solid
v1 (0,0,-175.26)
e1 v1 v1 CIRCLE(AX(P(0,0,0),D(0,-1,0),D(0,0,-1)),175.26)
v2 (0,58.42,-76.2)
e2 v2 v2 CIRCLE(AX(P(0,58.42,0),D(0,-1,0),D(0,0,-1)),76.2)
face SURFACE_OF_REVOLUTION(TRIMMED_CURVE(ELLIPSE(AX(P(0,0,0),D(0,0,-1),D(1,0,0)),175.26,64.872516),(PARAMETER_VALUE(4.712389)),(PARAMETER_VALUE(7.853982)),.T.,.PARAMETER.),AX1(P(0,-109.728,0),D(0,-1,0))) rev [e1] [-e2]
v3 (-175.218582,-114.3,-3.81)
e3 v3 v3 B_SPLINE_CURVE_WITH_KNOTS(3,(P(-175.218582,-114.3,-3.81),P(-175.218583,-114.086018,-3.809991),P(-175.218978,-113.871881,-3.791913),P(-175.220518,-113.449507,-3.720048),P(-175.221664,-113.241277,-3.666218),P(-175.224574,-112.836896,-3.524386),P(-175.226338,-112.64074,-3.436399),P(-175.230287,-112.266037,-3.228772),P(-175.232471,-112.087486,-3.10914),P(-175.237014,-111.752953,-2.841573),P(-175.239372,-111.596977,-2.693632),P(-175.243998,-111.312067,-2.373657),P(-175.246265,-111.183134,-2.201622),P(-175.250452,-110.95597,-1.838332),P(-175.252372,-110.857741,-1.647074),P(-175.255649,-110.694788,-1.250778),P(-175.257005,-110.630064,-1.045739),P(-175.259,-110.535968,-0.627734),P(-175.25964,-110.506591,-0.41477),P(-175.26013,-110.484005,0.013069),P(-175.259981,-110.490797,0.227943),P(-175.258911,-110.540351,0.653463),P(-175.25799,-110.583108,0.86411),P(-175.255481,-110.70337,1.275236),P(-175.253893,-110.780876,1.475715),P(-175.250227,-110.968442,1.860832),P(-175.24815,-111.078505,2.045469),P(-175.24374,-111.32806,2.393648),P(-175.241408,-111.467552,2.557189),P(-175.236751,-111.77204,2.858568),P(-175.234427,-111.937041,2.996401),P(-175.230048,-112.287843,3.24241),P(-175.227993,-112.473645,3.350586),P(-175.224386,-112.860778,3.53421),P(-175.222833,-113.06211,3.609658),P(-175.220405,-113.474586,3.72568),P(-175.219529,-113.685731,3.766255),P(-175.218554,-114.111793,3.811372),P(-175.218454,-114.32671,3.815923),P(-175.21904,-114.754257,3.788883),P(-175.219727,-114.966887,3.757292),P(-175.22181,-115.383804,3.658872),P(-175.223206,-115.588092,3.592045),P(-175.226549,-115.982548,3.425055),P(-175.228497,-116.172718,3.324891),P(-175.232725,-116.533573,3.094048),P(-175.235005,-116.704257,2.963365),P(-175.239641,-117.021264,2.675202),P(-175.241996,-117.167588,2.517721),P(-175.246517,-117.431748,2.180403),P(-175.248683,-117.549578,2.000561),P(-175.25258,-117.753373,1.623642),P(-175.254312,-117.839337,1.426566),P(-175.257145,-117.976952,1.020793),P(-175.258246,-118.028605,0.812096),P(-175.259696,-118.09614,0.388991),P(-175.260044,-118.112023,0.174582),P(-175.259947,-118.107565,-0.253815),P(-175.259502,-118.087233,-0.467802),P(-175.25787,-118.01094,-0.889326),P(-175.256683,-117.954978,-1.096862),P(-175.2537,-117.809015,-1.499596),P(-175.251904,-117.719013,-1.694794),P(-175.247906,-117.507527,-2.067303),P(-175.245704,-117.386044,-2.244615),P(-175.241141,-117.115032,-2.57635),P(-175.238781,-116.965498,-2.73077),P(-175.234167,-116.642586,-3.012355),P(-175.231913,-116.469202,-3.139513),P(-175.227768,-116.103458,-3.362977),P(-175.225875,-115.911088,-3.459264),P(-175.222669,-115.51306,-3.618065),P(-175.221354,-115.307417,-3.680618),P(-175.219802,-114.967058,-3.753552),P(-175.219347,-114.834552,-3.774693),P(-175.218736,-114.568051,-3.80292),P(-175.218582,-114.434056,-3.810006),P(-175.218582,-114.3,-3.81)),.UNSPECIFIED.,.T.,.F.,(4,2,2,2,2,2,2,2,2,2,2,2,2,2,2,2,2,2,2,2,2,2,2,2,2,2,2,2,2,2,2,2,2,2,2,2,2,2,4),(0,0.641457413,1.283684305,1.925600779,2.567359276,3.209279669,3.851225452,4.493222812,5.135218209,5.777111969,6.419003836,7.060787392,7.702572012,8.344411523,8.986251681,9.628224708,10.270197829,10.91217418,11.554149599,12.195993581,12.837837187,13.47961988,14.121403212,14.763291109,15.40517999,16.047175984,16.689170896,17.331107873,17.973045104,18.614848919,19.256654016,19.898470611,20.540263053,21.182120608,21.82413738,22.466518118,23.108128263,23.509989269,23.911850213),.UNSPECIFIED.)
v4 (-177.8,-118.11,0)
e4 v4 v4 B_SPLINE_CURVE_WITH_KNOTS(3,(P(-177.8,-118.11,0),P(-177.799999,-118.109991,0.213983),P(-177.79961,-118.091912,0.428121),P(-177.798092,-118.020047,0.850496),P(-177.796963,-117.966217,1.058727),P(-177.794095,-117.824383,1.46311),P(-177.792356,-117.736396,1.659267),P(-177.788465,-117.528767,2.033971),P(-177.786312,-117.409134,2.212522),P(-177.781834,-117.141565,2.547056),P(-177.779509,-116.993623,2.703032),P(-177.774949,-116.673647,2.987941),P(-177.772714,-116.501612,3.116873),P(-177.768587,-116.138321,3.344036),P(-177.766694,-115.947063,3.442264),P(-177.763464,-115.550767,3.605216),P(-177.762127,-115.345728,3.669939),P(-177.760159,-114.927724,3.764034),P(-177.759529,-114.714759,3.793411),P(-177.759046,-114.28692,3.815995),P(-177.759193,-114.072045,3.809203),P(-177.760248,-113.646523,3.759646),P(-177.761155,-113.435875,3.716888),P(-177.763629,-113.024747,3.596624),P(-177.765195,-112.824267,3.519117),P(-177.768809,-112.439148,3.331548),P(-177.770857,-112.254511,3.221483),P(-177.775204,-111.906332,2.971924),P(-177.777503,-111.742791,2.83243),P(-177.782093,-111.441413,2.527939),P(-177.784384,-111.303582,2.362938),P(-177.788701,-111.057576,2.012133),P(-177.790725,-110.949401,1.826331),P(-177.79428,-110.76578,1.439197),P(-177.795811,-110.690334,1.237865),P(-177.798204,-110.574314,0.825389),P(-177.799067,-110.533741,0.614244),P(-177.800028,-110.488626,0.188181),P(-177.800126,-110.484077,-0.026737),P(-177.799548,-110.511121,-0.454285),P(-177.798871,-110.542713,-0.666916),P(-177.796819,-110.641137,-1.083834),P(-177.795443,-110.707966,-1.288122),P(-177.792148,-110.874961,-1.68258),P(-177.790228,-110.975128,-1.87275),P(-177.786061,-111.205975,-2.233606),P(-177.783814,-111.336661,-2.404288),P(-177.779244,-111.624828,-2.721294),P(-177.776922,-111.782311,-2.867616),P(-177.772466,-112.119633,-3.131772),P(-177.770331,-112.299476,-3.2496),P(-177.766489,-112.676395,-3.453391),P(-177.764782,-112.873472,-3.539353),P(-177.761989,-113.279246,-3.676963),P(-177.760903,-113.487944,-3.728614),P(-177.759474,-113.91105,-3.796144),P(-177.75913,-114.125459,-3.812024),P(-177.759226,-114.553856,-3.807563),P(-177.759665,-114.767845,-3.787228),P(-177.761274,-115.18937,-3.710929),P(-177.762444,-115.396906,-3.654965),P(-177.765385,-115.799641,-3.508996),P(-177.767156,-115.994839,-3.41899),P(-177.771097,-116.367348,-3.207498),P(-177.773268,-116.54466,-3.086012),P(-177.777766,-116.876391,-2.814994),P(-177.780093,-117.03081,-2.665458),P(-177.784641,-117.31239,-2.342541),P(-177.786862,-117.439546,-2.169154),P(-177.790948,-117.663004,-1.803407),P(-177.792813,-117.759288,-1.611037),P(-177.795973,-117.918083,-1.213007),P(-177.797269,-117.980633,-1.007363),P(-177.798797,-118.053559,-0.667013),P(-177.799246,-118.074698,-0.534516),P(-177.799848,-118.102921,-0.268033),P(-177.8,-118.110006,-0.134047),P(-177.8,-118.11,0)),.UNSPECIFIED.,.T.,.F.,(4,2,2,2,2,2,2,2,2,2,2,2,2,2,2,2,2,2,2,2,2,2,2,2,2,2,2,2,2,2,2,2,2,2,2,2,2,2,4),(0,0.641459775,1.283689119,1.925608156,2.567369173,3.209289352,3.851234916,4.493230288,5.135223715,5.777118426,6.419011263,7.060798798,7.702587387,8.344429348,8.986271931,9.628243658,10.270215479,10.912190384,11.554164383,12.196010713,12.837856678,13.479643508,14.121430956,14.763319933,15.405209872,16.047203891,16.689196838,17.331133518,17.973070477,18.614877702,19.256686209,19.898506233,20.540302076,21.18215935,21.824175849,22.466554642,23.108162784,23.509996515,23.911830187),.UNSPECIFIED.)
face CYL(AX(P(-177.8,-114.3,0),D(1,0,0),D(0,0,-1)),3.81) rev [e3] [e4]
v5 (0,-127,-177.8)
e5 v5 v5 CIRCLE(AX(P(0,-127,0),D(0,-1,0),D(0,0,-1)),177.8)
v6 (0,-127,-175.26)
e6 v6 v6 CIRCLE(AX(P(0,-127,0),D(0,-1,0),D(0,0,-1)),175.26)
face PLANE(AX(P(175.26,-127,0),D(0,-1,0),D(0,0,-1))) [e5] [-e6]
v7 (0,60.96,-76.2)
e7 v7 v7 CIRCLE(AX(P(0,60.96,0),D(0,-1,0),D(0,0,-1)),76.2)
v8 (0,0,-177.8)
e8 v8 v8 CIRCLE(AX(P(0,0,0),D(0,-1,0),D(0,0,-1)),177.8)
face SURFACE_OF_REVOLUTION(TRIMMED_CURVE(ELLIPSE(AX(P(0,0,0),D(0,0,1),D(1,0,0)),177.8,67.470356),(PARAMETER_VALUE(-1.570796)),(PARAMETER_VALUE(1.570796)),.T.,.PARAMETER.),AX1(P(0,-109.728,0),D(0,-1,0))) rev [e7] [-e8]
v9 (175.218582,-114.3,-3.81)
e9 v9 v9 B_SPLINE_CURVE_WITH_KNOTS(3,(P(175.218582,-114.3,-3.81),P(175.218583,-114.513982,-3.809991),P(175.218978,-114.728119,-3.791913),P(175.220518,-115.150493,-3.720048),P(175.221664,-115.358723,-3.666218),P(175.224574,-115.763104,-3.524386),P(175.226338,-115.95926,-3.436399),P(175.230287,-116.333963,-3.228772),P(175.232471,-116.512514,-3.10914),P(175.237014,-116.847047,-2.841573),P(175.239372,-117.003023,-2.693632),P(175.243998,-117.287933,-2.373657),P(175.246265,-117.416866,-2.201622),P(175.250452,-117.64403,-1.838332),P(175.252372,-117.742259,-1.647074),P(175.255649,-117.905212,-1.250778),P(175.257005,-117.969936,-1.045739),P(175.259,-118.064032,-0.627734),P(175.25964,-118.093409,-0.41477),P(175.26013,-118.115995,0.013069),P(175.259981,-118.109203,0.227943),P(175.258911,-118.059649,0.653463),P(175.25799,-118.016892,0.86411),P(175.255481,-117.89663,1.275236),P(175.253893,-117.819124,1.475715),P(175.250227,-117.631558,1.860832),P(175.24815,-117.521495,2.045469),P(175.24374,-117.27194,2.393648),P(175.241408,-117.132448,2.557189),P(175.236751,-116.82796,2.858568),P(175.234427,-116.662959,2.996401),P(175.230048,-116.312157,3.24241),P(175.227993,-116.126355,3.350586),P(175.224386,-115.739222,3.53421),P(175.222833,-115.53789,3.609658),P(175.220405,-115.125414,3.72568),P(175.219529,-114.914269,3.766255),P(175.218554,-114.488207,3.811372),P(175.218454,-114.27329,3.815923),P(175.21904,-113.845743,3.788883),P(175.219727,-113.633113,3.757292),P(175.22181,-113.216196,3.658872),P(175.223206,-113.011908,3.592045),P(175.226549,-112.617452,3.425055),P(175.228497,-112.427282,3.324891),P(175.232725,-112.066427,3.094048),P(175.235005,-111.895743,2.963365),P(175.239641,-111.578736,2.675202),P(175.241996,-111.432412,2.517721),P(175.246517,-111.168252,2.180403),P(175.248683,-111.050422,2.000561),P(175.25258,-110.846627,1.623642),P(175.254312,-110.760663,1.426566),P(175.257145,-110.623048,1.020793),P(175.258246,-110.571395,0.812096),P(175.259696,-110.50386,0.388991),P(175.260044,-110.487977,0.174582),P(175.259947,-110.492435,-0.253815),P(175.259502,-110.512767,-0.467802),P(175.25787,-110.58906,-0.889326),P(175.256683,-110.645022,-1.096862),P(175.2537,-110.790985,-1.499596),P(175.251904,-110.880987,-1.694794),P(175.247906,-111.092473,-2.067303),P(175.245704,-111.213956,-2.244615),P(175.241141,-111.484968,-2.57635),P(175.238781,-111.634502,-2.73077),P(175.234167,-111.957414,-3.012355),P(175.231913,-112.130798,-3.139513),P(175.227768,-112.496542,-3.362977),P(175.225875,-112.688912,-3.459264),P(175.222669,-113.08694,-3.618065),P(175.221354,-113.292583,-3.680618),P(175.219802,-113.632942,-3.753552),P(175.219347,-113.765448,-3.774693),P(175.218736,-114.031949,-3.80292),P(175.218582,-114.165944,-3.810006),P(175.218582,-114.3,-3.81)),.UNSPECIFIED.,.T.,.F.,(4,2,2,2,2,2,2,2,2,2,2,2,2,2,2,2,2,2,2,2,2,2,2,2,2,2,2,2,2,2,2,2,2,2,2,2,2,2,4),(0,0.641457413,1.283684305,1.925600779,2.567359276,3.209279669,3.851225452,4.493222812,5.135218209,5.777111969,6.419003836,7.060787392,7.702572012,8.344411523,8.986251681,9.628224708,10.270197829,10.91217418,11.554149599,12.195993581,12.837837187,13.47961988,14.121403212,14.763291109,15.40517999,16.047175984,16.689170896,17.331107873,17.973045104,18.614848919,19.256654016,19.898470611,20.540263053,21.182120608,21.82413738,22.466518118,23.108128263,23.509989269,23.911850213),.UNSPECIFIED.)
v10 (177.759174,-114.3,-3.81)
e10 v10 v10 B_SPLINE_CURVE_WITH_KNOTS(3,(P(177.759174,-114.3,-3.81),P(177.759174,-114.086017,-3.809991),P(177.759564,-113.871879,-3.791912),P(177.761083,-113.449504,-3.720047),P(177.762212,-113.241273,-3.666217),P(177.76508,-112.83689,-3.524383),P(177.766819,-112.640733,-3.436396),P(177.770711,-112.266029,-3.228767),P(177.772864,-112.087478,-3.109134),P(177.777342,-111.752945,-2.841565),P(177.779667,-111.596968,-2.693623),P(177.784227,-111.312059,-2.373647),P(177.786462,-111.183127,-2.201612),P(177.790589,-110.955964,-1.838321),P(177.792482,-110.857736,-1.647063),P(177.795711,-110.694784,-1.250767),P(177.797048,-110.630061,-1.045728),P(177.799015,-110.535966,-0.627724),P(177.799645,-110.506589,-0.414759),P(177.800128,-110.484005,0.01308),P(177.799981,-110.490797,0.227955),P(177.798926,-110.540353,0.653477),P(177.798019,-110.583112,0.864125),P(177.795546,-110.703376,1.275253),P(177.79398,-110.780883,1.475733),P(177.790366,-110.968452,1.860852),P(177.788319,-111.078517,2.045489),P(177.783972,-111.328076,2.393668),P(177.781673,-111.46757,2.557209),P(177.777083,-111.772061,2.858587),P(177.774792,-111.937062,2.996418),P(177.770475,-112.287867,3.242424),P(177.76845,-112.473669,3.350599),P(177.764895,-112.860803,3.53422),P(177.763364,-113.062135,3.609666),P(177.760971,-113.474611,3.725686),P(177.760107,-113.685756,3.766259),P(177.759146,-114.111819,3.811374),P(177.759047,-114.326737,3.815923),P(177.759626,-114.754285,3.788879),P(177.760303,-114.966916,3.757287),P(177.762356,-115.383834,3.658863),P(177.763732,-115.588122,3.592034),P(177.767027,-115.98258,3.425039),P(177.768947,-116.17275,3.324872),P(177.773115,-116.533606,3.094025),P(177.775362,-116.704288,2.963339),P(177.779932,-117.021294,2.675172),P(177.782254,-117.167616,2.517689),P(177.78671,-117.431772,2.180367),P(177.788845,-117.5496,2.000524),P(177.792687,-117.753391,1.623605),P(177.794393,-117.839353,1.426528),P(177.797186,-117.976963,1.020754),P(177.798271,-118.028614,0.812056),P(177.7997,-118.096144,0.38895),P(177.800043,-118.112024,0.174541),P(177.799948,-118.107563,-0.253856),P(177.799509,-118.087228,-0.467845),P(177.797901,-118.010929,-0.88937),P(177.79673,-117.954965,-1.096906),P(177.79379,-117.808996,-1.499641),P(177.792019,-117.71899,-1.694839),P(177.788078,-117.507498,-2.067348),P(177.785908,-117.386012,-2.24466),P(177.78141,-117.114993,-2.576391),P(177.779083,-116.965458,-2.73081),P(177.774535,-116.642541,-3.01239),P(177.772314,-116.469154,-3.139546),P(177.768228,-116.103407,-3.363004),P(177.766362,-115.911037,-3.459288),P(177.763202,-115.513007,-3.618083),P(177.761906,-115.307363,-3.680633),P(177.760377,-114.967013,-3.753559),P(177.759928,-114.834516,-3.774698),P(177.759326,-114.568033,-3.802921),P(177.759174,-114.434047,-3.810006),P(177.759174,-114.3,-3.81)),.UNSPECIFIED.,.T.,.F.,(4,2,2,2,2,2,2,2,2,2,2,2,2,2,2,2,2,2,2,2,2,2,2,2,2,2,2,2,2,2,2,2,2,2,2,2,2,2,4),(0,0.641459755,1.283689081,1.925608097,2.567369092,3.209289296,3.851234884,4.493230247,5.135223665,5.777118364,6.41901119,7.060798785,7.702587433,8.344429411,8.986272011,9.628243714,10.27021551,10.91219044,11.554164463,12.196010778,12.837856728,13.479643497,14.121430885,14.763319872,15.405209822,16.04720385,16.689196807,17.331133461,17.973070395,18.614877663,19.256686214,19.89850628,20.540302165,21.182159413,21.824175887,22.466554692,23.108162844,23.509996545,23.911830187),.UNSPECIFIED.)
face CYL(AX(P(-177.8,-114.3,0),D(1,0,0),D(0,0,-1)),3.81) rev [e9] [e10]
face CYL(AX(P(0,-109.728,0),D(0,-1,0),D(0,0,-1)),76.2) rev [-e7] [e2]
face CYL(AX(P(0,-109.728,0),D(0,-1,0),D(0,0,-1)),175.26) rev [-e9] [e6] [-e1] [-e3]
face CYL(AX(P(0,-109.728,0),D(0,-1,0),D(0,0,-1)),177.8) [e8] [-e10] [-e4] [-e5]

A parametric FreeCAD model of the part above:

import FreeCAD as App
import Part
import Sketcher

V = App.Vector
Q = App.Units.Quantity

doc = App.newDocument("Part")
body = doc.addObject("PartDesign::Body", "Body")

# Sketch on XY plane
sketch1 = body.newObject("Sketcher::SketchObject", "Sketch")
sketch1.AttachmentSupport = (doc.getObject("XY_Plane"), [""])
sketch1.MapMode = "FlatFace"
sketch1.addGeometry(Part.LineSegment(V(175.26, 0, 0), V(175.26, -127, 0)), False)
sketch1.addGeometry(Part.LineSegment(V(175.26, -127, 0), V(177.8, -127, 0)), False)
sketch1.addGeometry(Part.LineSegment(V(177.8, -127, 0), V(177.8, 0, 0)), False)
sketch1.addGeometry(Part.BSplineCurve([V(177.8, 0, 0), V(177.8, 42.672, 0), V(76.2, 60.96, 0)], [3, 3], [0, 1.127885283], False, 2, [1, 0.845154255, 1], False), False)
sketch1.addGeometry(Part.LineSegment(V(76.2, 60.96, 0), V(76.2, 58.42, 0)), False)
sketch1.addGeometry(Part.BSplineCurve([V(175.26, 0, 0), V(175.26, 40.71697, 0), V(76.2, 58.42, 0)], [3, 3], [0, 1.120999466], False, 2, [1, 0.846989554, 1], False), False)
sketch1.addConstraint(Sketcher.Constraint("Block", 3))
sketch1.addConstraint(Sketcher.Constraint("Block", 5))
sketch1.addConstraint(Sketcher.Constraint("Coincident", 0, 2, 1, 1))
sketch1.addConstraint(Sketcher.Constraint("Coincident", 1, 2, 2, 1))
sketch1.addConstraint(Sketcher.Constraint("Coincident", 2, 2, 3, 1))
sketch1.addConstraint(Sketcher.Constraint("Coincident", 3, 2, 4, 1))
sketch1.addConstraint(Sketcher.Constraint("Coincident", 4, 2, 5, 2))
sketch1.addConstraint(Sketcher.Constraint("Coincident", 5, 1, 0, 1))
sketch1.addConstraint(Sketcher.Constraint("Vertical", 0))
sketch1.addConstraint(Sketcher.Constraint("Horizontal", 1))
sketch1.addConstraint(Sketcher.Constraint("Vertical", 2))
sketch1.addConstraint(Sketcher.Constraint("DistanceY", 0, 2, 0, 1, Q("5 in")))
revolution = body.newObject("PartDesign::Revolution", "Revolution")
revolution.Profile = sketch1
revolution.ReferenceAxis = (sketch1, ["V_Axis"])
revolution.Angle = 360

# Sketch on YZ plane
sketch2 = body.newObject("Sketcher::SketchObject", "Sketch001")
sketch2.AttachmentSupport = (doc.getObject("YZ_Plane"), [""])
sketch2.MapMode = "FlatFace"
sketch2.addGeometry(Part.Circle(V(-114.3, 0, 0), V(0, 0, 1), 3.8), False)
sketch2.addConstraint(Sketcher.Constraint("PointOnObject", 0, 3, -1))
sketch2.addConstraint(Sketcher.Constraint("Diameter", 0, Q("0.3 in")))
sketch2.addConstraint(Sketcher.Constraint("DistanceX", 0, 3, -1, 1, Q("4.5 in")))
pocket1 = body.newObject("PartDesign::Pocket", "Pocket")
pocket1.Profile = sketch2
pocket1.Type = "ThroughAll"
pocket1.Midplane = True

doc.recompute()
